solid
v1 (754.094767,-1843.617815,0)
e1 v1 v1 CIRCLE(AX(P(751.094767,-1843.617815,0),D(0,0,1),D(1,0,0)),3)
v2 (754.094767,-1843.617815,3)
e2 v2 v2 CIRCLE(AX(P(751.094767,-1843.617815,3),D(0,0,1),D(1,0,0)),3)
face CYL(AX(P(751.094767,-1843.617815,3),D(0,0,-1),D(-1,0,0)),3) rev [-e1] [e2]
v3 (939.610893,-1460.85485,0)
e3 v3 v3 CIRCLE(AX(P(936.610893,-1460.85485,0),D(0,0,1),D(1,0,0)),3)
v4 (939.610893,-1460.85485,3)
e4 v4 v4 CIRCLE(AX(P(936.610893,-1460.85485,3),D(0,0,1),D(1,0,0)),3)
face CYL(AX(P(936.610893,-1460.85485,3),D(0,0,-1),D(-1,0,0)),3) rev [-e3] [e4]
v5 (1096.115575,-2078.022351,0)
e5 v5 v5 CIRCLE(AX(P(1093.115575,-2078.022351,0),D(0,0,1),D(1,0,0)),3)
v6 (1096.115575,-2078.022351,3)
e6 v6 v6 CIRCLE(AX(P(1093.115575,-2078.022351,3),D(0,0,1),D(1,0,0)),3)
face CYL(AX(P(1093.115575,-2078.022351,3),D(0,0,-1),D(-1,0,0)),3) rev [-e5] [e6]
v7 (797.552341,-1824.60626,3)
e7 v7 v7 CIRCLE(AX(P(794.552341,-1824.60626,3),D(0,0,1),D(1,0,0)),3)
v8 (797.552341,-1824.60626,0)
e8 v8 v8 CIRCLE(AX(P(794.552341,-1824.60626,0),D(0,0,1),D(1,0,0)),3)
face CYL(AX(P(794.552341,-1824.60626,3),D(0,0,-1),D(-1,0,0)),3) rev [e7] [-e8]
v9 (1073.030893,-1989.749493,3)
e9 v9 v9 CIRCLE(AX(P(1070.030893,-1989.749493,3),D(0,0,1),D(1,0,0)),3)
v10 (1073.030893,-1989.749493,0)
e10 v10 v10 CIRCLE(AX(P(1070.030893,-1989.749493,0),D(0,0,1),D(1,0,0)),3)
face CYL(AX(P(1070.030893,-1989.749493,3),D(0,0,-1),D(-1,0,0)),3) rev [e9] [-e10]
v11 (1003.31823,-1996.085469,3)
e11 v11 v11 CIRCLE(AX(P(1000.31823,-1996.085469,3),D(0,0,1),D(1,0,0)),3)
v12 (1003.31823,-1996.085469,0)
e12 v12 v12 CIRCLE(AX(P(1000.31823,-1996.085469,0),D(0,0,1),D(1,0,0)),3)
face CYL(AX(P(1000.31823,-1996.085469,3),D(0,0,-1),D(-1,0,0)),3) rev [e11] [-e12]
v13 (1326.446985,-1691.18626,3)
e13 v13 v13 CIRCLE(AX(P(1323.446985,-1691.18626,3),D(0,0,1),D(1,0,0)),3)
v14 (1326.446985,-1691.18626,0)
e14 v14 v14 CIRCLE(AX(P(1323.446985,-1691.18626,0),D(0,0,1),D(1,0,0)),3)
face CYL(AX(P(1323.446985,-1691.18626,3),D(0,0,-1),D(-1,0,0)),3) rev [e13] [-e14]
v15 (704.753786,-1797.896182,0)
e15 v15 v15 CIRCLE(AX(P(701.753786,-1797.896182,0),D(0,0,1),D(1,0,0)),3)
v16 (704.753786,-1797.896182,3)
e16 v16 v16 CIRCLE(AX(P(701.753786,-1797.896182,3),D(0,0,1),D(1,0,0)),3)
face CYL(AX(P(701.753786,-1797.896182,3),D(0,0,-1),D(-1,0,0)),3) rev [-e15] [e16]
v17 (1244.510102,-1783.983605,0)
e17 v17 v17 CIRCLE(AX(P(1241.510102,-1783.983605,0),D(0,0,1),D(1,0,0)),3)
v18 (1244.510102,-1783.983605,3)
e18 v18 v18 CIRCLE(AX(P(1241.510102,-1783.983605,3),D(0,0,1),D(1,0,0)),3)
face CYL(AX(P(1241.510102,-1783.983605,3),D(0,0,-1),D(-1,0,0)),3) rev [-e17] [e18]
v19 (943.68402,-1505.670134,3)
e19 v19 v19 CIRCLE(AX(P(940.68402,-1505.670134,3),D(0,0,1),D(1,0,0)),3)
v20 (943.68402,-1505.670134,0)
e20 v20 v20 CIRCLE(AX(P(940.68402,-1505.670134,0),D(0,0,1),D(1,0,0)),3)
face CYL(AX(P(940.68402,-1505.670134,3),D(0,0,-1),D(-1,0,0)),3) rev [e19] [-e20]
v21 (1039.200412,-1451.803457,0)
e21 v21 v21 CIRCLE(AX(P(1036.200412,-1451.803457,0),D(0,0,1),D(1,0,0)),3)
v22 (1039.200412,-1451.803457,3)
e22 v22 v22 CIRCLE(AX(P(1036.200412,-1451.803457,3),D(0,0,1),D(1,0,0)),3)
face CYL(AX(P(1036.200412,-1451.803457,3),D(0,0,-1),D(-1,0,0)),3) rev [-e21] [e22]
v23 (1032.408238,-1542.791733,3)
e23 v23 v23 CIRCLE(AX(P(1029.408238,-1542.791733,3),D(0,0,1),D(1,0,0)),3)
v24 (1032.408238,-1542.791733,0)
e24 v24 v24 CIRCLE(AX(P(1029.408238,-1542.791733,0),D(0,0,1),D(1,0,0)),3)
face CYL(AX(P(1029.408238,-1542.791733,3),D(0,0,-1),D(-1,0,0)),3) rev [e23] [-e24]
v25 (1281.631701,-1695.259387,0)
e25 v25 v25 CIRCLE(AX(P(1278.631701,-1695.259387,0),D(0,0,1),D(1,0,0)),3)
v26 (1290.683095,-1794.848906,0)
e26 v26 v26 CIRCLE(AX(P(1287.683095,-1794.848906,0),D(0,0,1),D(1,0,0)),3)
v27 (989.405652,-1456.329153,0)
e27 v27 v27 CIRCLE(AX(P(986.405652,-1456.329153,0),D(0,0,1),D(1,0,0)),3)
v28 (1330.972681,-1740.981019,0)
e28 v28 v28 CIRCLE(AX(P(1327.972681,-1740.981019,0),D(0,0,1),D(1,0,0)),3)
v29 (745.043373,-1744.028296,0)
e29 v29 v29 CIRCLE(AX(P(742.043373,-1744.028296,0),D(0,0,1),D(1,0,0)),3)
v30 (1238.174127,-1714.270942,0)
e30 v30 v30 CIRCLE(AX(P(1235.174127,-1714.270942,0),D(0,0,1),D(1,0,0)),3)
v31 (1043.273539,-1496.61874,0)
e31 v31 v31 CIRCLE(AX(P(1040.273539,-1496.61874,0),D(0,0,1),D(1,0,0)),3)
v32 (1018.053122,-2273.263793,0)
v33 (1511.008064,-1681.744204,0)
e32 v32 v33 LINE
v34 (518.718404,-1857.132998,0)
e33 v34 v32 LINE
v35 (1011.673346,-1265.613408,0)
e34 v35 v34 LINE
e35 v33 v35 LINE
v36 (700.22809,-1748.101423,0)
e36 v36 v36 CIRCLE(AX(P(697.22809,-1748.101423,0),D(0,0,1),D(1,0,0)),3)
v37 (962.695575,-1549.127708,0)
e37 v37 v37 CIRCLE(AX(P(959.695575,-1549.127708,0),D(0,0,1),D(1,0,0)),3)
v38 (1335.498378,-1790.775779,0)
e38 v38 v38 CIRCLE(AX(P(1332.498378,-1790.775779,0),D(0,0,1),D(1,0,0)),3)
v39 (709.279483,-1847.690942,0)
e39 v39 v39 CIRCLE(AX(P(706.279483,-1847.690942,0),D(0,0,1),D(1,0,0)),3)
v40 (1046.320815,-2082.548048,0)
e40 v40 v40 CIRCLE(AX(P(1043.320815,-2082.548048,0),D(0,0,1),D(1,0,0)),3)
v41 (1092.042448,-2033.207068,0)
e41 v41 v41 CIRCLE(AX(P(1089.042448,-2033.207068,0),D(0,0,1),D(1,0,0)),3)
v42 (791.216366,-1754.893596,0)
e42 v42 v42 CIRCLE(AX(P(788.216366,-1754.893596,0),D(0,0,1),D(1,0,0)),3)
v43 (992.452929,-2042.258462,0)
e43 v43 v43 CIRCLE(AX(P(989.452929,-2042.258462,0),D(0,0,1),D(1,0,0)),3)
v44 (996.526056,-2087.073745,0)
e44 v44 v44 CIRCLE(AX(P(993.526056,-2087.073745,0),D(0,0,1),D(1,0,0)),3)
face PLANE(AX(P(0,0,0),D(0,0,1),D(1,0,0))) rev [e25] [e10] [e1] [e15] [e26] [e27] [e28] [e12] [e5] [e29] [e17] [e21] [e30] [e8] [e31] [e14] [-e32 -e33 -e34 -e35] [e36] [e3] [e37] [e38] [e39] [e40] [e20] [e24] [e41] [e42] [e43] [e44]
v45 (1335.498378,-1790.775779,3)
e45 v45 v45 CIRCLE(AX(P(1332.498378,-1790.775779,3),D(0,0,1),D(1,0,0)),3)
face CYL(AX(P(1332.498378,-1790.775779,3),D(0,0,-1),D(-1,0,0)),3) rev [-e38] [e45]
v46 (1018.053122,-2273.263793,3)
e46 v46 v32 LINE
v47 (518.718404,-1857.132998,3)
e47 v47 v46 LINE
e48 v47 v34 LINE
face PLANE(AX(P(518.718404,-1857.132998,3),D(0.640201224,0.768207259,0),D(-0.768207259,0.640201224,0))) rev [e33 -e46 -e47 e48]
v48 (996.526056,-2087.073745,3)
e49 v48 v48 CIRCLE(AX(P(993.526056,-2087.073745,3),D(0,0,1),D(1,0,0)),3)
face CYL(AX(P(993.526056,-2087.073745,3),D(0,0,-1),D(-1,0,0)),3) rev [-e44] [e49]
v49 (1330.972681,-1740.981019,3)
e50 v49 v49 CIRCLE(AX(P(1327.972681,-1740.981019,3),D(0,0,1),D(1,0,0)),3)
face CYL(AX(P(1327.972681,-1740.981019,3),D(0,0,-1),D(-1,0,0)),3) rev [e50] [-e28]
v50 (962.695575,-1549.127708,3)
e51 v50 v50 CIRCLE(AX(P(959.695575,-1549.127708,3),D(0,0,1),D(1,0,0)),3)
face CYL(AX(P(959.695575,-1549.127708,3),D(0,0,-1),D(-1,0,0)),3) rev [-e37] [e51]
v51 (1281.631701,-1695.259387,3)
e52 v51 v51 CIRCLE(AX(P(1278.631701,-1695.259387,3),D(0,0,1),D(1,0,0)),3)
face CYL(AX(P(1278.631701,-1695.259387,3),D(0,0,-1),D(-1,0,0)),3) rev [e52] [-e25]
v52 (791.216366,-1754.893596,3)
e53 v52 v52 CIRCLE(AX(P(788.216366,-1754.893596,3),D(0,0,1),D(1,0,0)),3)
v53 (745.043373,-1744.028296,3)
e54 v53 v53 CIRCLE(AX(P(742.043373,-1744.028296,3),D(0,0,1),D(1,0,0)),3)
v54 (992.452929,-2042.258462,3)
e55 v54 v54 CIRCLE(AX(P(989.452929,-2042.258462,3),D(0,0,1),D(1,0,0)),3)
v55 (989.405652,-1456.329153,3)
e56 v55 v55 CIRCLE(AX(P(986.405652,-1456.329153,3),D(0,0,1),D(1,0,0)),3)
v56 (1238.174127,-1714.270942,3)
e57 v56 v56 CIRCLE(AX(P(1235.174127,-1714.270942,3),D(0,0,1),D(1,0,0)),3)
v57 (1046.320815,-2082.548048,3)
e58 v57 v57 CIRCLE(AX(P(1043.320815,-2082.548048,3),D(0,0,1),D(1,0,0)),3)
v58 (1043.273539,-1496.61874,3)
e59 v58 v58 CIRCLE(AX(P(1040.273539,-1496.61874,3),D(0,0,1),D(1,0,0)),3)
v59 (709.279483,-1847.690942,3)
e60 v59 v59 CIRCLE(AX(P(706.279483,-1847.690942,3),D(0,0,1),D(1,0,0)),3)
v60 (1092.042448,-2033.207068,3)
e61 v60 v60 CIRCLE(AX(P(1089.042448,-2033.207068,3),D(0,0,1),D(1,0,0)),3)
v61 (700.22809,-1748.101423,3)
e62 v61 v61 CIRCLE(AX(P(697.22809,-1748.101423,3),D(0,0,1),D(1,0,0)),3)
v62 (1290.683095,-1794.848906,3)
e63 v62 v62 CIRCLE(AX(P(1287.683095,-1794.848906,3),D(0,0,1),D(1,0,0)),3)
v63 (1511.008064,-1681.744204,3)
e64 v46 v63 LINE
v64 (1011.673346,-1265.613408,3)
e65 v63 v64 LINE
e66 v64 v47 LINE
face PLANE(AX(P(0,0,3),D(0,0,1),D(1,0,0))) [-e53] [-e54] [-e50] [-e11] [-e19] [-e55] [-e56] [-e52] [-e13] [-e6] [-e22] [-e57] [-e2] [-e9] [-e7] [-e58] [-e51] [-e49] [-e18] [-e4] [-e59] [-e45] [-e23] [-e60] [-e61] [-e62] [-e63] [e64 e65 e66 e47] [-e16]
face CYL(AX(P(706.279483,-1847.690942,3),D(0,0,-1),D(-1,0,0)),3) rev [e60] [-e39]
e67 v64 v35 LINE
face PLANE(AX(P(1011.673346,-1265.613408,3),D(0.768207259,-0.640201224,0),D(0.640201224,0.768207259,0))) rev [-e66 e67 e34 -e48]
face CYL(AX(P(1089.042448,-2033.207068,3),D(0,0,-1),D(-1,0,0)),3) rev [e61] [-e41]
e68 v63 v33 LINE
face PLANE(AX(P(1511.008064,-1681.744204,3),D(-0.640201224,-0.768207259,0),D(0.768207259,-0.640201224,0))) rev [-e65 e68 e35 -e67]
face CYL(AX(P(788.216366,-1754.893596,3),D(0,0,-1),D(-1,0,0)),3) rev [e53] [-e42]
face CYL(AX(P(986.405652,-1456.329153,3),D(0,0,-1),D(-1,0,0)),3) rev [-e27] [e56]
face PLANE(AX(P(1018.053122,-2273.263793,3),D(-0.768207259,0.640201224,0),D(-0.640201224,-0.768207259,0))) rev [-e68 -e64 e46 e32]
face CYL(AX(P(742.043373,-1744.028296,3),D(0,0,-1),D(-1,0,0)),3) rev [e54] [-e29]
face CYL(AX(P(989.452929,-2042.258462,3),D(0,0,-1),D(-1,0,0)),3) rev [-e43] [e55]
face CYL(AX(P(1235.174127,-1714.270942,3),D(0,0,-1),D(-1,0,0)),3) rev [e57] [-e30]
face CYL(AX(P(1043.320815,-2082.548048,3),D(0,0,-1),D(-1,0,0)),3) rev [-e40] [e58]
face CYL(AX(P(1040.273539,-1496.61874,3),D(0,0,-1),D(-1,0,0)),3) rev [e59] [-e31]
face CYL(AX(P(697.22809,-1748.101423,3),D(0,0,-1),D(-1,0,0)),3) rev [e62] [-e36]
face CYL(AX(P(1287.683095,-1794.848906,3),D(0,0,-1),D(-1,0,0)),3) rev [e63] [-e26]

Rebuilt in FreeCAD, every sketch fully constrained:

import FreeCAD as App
import Part
import Sketcher
from FreeCAD import Vector
Q = App.Units.Quantity


def add_polygon(sketch, points):
    """Adds a closed chain of lines whose ends are joined by coincident constraints."""
    first, n = sketch.GeometryCount, len(points)
    for a, b in zip(points, points[1:] + points[:1]):
        sketch.addGeometry(Part.LineSegment(App.Vector(*a, 0), App.Vector(*b, 0)), False)
    for i in range(n):
        sketch.addConstraint(Sketcher.Constraint("Coincident", first + i, 2, first + (i + 1) % n, 1))

doc = App.newDocument("Part")
body = doc.addObject("PartDesign::Body", "Body")

sketch1 = body.newObject("Sketcher::SketchObject", "Sketch")
sketch1.AttachmentSupport = (doc.getObject("XY_Plane"), [""])
sketch1.MapMode = "FlatFace"
add_polygon(sketch1, [(1018.053122, -2273.263793), (1511.008064, -1681.744204), (1011.673346, -1265.613408), (518.718404, -1857.132998)])
sketch1.addGeometry(Part.Circle(Vector(993.526056, -2087.073745, 0), Vector(0, 0, 1), 3), False)
sketch1.addGeometry(Part.Circle(Vector(989.452929, -2042.258462, 0), Vector(0, 0, 1), 3), False)
sketch1.addGeometry(Part.Circle(Vector(1000.31823, -1996.085469, 0), Vector(0, 0, 1), 3), False)
sketch1.addGeometry(Part.Circle(Vector(706.279483, -1847.690942, 0), Vector(0, 0, 1), 3), False)
sketch1.addGeometry(Part.Circle(Vector(751.094767, -1843.617815, 0), Vector(0, 0, 1), 3), False)
sketch1.addGeometry(Part.Circle(Vector(701.753786, -1797.896182, 0), Vector(0, 0, 1), 3), False)
sketch1.addGeometry(Part.Circle(Vector(794.552341, -1824.60626, 0), Vector(0, 0, 1), 3), False)
sketch1.addGeometry(Part.Circle(Vector(1043.320815, -2082.548048, 0), Vector(0, 0, 1), 3), False)
sketch1.addGeometry(Part.Circle(Vector(1093.115575, -2078.022351, 0), Vector(0, 0, 1), 3), False)
sketch1.addGeometry(Part.Circle(Vector(1089.042448, -2033.207068, 0), Vector(0, 0, 1), 3), False)
sketch1.addGeometry(Part.Circle(Vector(1070.030893, -1989.749493, 0), Vector(0, 0, 1), 3), False)
sketch1.addGeometry(Part.Circle(Vector(1241.510102, -1783.983605, 0), Vector(0, 0, 1), 3), False)
sketch1.addGeometry(Part.Circle(Vector(1287.683095, -1794.848906, 0), Vector(0, 0, 1), 3), False)
sketch1.addGeometry(Part.Circle(Vector(1332.498378, -1790.775779, 0), Vector(0, 0, 1), 3), False)
sketch1.addGeometry(Part.Circle(Vector(697.22809, -1748.101423, 0), Vector(0, 0, 1), 3), False)
sketch1.addGeometry(Part.Circle(Vector(742.043373, -1744.028296, 0), Vector(0, 0, 1), 3), False)
sketch1.addGeometry(Part.Circle(Vector(788.216366, -1754.893596, 0), Vector(0, 0, 1), 3), False)
sketch1.addGeometry(Part.Circle(Vector(959.695575, -1549.127708, 0), Vector(0, 0, 1), 3), False)
sketch1.addGeometry(Part.Circle(Vector(940.68402, -1505.670134, 0), Vector(0, 0, 1), 3), False)
sketch1.addGeometry(Part.Circle(Vector(936.610893, -1460.85485, 0), Vector(0, 0, 1), 3), False)
sketch1.addGeometry(Part.Circle(Vector(986.405652, -1456.329153, 0), Vector(0, 0, 1), 3), False)
sketch1.addGeometry(Part.Circle(Vector(1235.174127, -1714.270942, 0), Vector(0, 0, 1), 3), False)
sketch1.addGeometry(Part.Circle(Vector(1327.972681, -1740.981019, 0), Vector(0, 0, 1), 3), False)
sketch1.addGeometry(Part.Circle(Vector(1278.631701, -1695.259387, 0), Vector(0, 0, 1), 3), False)
sketch1.addGeometry(Part.Circle(Vector(1323.446985, -1691.18626, 0), Vector(0, 0, 1), 3), False)
sketch1.addGeometry(Part.Circle(Vector(1029.408238, -1542.791733, 0), Vector(0, 0, 1), 3), False)
sketch1.addGeometry(Part.Circle(Vector(1040.273539, -1496.61874, 0), Vector(0, 0, 1), 3), False)
sketch1.addGeometry(Part.Circle(Vector(1036.200412, -1451.803457, 0), Vector(0, 0, 1), 3), False)
sketch1.addConstraint(Sketcher.Constraint("Equal", 4, 5))
sketch1.addConstraint(Sketcher.Constraint("Equal", 5, 6))
sketch1.addConstraint(Sketcher.Constraint("Equal", 6, 7))
sketch1.addConstraint(Sketcher.Constraint("Equal", 7, 8))
sketch1.addConstraint(Sketcher.Constraint("Equal", 8, 9))
sketch1.addConstraint(Sketcher.Constraint("Equal", 9, 10))
sketch1.addConstraint(Sketcher.Constraint("Equal", 10, 11))
sketch1.addConstraint(Sketcher.Constraint("Equal", 11, 12))
sketch1.addConstraint(Sketcher.Constraint("Equal", 12, 13))
sketch1.addConstraint(Sketcher.Constraint("Equal", 13, 14))
sketch1.addConstraint(Sketcher.Constraint("Equal", 14, 15))
sketch1.addConstraint(Sketcher.Constraint("Equal", 15, 16))
sketch1.addConstraint(Sketcher.Constraint("Equal", 16, 17))
sketch1.addConstraint(Sketcher.Constraint("Equal", 17, 18))
sketch1.addConstraint(Sketcher.Constraint("Equal", 18, 19))
sketch1.addConstraint(Sketcher.Constraint("Equal", 19, 20))
sketch1.addConstraint(Sketcher.Constraint("Equal", 20, 21))
sketch1.addConstraint(Sketcher.Constraint("Equal", 21, 22))
sketch1.addConstraint(Sketcher.Constraint("Equal", 22, 23))
sketch1.addConstraint(Sketcher.Constraint("Equal", 23, 24))
sketch1.addConstraint(Sketcher.Constraint("Equal", 24, 25))
sketch1.addConstraint(Sketcher.Constraint("Equal", 25, 26))
sketch1.addConstraint(Sketcher.Constraint("Equal", 26, 27))
sketch1.addConstraint(Sketcher.Constraint("Equal", 27, 28))
sketch1.addConstraint(Sketcher.Constraint("Equal", 28, 29))
sketch1.addConstraint(Sketcher.Constraint("Equal", 29, 30))
sketch1.addConstraint(Sketcher.Constraint("Equal", 30, 31))
sketch1.addConstraint(Sketcher.Constraint("Perpendicular", 0, 1))
sketch1.addConstraint(Sketcher.Constraint("Perpendicular", 1, 2))
sketch1.addConstraint(Sketcher.Constraint("Perpendicular", 2, 3))
sketch1.addConstraint(Sketcher.Constraint("Diameter", 4, Q("6 mm")))
sketch1.addConstraint(Sketcher.Constraint("Distance", 0, Q("770 mm")))
sketch1.addConstraint(Sketcher.Constraint("Distance", 1, Q("650 mm")))
sketch1.addConstraint(Sketcher.Constraint("DistanceY", 2, 2, -1, 1, Q("1857.132998 mm")))
sketch1.addConstraint(Sketcher.Constraint("DistanceX", -1, 1, 27, 3, Q("1278.631701 mm")))
sketch1.addConstraint(Sketcher.Constraint("DistanceX", 5, 3, 6, 3, Q("10.865301 mm")))
sketch1.addConstraint(Sketcher.Constraint("DistanceY", 5, 3, 10, 3, Q("217.652202 mm")))
sketch1.addConstraint(Sketcher.Constraint("DistanceY", 13, 3, 6, 3, Q("37.121599 mm")))
sketch1.addConstraint(Sketcher.Constraint("DistanceY", 16, 3, 15, 3, Q("10.865301 mm")))
sketch1.addConstraint(Sketcher.Constraint("DistanceX", 14, 3, 16, 3, Q("217.652202 mm")))
sketch1.addConstraint(Sketcher.Constraint("DistanceY", 20, 3, 19, 3, Q("10.865301 mm")))
sketch1.addConstraint(Sketcher.Constraint("DistanceX", 8, 3, 20, 3, Q("37.121599 mm")))
sketch1.addConstraint(Sketcher.Constraint("DistanceX", 19, 3, 21, 3, Q("217.652202 mm")))
sketch1.addConstraint(Sketcher.Constraint("DistanceX", 15, 3, 27, 3, Q("37.121599 mm")))
sketch1.addConstraint(Sketcher.Constraint("DistanceY", 29, 3, 22, 3, Q("37.121599 mm")))
sketch1.addConstraint(Sketcher.Constraint("DistanceX", 29, 3, 30, 3, Q("10.865301 mm")))
sketch1.addConstraint(Sketcher.Constraint("DistanceX", -1, 1, 5, 3, Q("989.452929 mm")))
sketch1.addConstraint(Sketcher.Constraint("DistanceY", 5, 3, -1, 1, Q("2042.258462 mm")))
sketch1.addConstraint(Sketcher.Constraint("DistanceY", 6, 3, -1, 1, Q("1996.085469 mm")))
sketch1.addConstraint(Sketcher.Constraint("DistanceY", 7, 3, -1, 1, Q("1847.690942 mm")))
sketch1.addConstraint(Sketcher.Constraint("DistanceX", -1, 1, 10, 3, Q("794.552341 mm")))
sketch1.addConstraint(Sketcher.Constraint("DistanceY", 11, 3, -1, 1, Q("2082.548048 mm")))
sketch1.addConstraint(Sketcher.Constraint("DistanceY", 12, 3, -1, 1, Q("2078.022351 mm")))
sketch1.addConstraint(Sketcher.Constraint("DistanceX", -1, 1, 17, 3, Q("1332.498378 mm")))
sketch1.addConstraint(Sketcher.Constraint("DistanceY", 17, 3, -1, 1, Q("1790.775779 mm")))
sketch1.addConstraint(Sketcher.Constraint("DistanceX", -1, 1, 18, 3, Q("697.22809 mm")))
sketch1.addConstraint(Sketcher.Constraint("DistanceY", 21, 3, -1, 1, Q("1549.127708 mm")))
sketch1.addConstraint(Sketcher.Constraint("DistanceX", -1, 1, 22, 3, Q("940.68402 mm")))
sketch1.addConstraint(Sketcher.Constraint("DistanceY", 23, 3, -1, 1, Q("1460.85485 mm")))
sketch1.addConstraint(Sketcher.Constraint("DistanceY", 25, 3, -1, 1, Q("1714.270942 mm")))
sketch1.addConstraint(Sketcher.Constraint("DistanceX", -1, 1, 26, 3, Q("1327.972681 mm")))
sketch1.addConstraint(Sketcher.Constraint("DistanceY", 26, 3, -1, 1, Q("1740.981019 mm")))
sketch1.addConstraint(Sketcher.Constraint("DistanceY", 28, 3, -1, 1, Q("1691.18626 mm")))
sketch1.addConstraint(Sketcher.Constraint("DistanceX", -1, 1, 29, 3, Q("1029.408238 mm")))
sketch1.addConstraint(Sketcher.Constraint("DistanceY", 30, 3, -1, 1, Q("1496.61874 mm")))
sketch1.addConstraint(Sketcher.Constraint("DistanceX", -1, 1, 31, 3, Q("1036.200412 mm")))
sketch1.addConstraint(Sketcher.Constraint("DistanceY", 1, 2, -1, 1, Q("1265.613408 mm")))
sketch1.addConstraint(Sketcher.Constraint("DistanceX", 8, 3, 4, 3, Q("242.431289 mm")))
sketch1.addConstraint(Sketcher.Constraint("DistanceY", 4, 3, 8, 3, Q("243.45593 mm")))
sketch1.addConstraint(Sketcher.Constraint("DistanceY", 7, 3, 9, 3, Q("49.794759 mm")))
sketch1.addConstraint(Sketcher.Constraint("DistanceX", 9, 3, 8, 3, Q("49.34098 mm")))
sketch1.addConstraint(Sketcher.Constraint("DistanceX", 4, 3, 11, 3, Q("49.794759 mm")))
sketch1.addConstraint(Sketcher.Constraint("DistanceX", 11, 3, 12, 3, Q("49.794759 mm")))
sketch1.addConstraint(Sketcher.Constraint("DistanceX", 6, 3, 13, 3, Q("88.724218 mm")))
sketch1.addConstraint(Sketcher.Constraint("DistanceX", 4, 3, 13, 3, Q("95.516392 mm")))
sketch1.addConstraint(Sketcher.Constraint("DistanceY", 5, 3, 14, 3, Q("52.508968 mm")))
sketch1.addConstraint(Sketcher.Constraint("DistanceX", 14, 3, 15, 3, Q("171.479209 mm")))
sketch1.addConstraint(Sketcher.Constraint("DistanceY", 14, 3, 15, 3, Q("205.765888 mm")))
sketch1.addConstraint(Sketcher.Constraint("DistanceY", 9, 3, 18, 3, Q("49.794759 mm")))
sketch1.addConstraint(Sketcher.Constraint("DistanceY", 8, 3, 18, 3, Q("95.516392 mm")))
sketch1.addConstraint(Sketcher.Constraint("DistanceX", 19, 3, 10, 3, Q("52.508968 mm")))
sketch1.addConstraint(Sketcher.Constraint("DistanceY", 8, 3, 19, 3, Q("99.589519 mm")))
sketch1.addConstraint(Sketcher.Constraint("DistanceX", 7, 3, 19, 3, Q("35.76389 mm")))
sketch1.addConstraint(Sketcher.Constraint("DistanceY", 18, 3, 22, 3, Q("242.431289 mm")))
sketch1.addConstraint(Sketcher.Constraint("DistanceX", 19, 3, 23, 3, Q("194.56752 mm")))
sketch1.addConstraint(Sketcher.Constraint("DistanceX", 23, 3, 24, 3, Q("49.794759 mm")))
sketch1.addConstraint(Sketcher.Constraint("DistanceY", 22, 3, 24, 3, Q("49.34098 mm")))
sketch1.addConstraint(Sketcher.Constraint("DistanceX", 25, 3, 16, 3, Q("52.508968 mm")))
sketch1.addConstraint(Sketcher.Constraint("DistanceY", 15, 3, 27, 3, Q("88.724218 mm")))
sketch1.addConstraint(Sketcher.Constraint("DistanceX", 16, 3, 28, 3, Q("35.76389 mm")))
sketch1.addConstraint(Sketcher.Constraint("DistanceX", 28, 3, 0, 2, Q("187.56108 mm")))
sketch1.addConstraint(Sketcher.Constraint("DistanceY", 31, 3, 1, 2, Q("186.190048 mm")))
pad1 = body.newObject("PartDesign::Pad", "Pad")
pad1.Profile = sketch1
pad1.Length = 3

doc.recompute()
